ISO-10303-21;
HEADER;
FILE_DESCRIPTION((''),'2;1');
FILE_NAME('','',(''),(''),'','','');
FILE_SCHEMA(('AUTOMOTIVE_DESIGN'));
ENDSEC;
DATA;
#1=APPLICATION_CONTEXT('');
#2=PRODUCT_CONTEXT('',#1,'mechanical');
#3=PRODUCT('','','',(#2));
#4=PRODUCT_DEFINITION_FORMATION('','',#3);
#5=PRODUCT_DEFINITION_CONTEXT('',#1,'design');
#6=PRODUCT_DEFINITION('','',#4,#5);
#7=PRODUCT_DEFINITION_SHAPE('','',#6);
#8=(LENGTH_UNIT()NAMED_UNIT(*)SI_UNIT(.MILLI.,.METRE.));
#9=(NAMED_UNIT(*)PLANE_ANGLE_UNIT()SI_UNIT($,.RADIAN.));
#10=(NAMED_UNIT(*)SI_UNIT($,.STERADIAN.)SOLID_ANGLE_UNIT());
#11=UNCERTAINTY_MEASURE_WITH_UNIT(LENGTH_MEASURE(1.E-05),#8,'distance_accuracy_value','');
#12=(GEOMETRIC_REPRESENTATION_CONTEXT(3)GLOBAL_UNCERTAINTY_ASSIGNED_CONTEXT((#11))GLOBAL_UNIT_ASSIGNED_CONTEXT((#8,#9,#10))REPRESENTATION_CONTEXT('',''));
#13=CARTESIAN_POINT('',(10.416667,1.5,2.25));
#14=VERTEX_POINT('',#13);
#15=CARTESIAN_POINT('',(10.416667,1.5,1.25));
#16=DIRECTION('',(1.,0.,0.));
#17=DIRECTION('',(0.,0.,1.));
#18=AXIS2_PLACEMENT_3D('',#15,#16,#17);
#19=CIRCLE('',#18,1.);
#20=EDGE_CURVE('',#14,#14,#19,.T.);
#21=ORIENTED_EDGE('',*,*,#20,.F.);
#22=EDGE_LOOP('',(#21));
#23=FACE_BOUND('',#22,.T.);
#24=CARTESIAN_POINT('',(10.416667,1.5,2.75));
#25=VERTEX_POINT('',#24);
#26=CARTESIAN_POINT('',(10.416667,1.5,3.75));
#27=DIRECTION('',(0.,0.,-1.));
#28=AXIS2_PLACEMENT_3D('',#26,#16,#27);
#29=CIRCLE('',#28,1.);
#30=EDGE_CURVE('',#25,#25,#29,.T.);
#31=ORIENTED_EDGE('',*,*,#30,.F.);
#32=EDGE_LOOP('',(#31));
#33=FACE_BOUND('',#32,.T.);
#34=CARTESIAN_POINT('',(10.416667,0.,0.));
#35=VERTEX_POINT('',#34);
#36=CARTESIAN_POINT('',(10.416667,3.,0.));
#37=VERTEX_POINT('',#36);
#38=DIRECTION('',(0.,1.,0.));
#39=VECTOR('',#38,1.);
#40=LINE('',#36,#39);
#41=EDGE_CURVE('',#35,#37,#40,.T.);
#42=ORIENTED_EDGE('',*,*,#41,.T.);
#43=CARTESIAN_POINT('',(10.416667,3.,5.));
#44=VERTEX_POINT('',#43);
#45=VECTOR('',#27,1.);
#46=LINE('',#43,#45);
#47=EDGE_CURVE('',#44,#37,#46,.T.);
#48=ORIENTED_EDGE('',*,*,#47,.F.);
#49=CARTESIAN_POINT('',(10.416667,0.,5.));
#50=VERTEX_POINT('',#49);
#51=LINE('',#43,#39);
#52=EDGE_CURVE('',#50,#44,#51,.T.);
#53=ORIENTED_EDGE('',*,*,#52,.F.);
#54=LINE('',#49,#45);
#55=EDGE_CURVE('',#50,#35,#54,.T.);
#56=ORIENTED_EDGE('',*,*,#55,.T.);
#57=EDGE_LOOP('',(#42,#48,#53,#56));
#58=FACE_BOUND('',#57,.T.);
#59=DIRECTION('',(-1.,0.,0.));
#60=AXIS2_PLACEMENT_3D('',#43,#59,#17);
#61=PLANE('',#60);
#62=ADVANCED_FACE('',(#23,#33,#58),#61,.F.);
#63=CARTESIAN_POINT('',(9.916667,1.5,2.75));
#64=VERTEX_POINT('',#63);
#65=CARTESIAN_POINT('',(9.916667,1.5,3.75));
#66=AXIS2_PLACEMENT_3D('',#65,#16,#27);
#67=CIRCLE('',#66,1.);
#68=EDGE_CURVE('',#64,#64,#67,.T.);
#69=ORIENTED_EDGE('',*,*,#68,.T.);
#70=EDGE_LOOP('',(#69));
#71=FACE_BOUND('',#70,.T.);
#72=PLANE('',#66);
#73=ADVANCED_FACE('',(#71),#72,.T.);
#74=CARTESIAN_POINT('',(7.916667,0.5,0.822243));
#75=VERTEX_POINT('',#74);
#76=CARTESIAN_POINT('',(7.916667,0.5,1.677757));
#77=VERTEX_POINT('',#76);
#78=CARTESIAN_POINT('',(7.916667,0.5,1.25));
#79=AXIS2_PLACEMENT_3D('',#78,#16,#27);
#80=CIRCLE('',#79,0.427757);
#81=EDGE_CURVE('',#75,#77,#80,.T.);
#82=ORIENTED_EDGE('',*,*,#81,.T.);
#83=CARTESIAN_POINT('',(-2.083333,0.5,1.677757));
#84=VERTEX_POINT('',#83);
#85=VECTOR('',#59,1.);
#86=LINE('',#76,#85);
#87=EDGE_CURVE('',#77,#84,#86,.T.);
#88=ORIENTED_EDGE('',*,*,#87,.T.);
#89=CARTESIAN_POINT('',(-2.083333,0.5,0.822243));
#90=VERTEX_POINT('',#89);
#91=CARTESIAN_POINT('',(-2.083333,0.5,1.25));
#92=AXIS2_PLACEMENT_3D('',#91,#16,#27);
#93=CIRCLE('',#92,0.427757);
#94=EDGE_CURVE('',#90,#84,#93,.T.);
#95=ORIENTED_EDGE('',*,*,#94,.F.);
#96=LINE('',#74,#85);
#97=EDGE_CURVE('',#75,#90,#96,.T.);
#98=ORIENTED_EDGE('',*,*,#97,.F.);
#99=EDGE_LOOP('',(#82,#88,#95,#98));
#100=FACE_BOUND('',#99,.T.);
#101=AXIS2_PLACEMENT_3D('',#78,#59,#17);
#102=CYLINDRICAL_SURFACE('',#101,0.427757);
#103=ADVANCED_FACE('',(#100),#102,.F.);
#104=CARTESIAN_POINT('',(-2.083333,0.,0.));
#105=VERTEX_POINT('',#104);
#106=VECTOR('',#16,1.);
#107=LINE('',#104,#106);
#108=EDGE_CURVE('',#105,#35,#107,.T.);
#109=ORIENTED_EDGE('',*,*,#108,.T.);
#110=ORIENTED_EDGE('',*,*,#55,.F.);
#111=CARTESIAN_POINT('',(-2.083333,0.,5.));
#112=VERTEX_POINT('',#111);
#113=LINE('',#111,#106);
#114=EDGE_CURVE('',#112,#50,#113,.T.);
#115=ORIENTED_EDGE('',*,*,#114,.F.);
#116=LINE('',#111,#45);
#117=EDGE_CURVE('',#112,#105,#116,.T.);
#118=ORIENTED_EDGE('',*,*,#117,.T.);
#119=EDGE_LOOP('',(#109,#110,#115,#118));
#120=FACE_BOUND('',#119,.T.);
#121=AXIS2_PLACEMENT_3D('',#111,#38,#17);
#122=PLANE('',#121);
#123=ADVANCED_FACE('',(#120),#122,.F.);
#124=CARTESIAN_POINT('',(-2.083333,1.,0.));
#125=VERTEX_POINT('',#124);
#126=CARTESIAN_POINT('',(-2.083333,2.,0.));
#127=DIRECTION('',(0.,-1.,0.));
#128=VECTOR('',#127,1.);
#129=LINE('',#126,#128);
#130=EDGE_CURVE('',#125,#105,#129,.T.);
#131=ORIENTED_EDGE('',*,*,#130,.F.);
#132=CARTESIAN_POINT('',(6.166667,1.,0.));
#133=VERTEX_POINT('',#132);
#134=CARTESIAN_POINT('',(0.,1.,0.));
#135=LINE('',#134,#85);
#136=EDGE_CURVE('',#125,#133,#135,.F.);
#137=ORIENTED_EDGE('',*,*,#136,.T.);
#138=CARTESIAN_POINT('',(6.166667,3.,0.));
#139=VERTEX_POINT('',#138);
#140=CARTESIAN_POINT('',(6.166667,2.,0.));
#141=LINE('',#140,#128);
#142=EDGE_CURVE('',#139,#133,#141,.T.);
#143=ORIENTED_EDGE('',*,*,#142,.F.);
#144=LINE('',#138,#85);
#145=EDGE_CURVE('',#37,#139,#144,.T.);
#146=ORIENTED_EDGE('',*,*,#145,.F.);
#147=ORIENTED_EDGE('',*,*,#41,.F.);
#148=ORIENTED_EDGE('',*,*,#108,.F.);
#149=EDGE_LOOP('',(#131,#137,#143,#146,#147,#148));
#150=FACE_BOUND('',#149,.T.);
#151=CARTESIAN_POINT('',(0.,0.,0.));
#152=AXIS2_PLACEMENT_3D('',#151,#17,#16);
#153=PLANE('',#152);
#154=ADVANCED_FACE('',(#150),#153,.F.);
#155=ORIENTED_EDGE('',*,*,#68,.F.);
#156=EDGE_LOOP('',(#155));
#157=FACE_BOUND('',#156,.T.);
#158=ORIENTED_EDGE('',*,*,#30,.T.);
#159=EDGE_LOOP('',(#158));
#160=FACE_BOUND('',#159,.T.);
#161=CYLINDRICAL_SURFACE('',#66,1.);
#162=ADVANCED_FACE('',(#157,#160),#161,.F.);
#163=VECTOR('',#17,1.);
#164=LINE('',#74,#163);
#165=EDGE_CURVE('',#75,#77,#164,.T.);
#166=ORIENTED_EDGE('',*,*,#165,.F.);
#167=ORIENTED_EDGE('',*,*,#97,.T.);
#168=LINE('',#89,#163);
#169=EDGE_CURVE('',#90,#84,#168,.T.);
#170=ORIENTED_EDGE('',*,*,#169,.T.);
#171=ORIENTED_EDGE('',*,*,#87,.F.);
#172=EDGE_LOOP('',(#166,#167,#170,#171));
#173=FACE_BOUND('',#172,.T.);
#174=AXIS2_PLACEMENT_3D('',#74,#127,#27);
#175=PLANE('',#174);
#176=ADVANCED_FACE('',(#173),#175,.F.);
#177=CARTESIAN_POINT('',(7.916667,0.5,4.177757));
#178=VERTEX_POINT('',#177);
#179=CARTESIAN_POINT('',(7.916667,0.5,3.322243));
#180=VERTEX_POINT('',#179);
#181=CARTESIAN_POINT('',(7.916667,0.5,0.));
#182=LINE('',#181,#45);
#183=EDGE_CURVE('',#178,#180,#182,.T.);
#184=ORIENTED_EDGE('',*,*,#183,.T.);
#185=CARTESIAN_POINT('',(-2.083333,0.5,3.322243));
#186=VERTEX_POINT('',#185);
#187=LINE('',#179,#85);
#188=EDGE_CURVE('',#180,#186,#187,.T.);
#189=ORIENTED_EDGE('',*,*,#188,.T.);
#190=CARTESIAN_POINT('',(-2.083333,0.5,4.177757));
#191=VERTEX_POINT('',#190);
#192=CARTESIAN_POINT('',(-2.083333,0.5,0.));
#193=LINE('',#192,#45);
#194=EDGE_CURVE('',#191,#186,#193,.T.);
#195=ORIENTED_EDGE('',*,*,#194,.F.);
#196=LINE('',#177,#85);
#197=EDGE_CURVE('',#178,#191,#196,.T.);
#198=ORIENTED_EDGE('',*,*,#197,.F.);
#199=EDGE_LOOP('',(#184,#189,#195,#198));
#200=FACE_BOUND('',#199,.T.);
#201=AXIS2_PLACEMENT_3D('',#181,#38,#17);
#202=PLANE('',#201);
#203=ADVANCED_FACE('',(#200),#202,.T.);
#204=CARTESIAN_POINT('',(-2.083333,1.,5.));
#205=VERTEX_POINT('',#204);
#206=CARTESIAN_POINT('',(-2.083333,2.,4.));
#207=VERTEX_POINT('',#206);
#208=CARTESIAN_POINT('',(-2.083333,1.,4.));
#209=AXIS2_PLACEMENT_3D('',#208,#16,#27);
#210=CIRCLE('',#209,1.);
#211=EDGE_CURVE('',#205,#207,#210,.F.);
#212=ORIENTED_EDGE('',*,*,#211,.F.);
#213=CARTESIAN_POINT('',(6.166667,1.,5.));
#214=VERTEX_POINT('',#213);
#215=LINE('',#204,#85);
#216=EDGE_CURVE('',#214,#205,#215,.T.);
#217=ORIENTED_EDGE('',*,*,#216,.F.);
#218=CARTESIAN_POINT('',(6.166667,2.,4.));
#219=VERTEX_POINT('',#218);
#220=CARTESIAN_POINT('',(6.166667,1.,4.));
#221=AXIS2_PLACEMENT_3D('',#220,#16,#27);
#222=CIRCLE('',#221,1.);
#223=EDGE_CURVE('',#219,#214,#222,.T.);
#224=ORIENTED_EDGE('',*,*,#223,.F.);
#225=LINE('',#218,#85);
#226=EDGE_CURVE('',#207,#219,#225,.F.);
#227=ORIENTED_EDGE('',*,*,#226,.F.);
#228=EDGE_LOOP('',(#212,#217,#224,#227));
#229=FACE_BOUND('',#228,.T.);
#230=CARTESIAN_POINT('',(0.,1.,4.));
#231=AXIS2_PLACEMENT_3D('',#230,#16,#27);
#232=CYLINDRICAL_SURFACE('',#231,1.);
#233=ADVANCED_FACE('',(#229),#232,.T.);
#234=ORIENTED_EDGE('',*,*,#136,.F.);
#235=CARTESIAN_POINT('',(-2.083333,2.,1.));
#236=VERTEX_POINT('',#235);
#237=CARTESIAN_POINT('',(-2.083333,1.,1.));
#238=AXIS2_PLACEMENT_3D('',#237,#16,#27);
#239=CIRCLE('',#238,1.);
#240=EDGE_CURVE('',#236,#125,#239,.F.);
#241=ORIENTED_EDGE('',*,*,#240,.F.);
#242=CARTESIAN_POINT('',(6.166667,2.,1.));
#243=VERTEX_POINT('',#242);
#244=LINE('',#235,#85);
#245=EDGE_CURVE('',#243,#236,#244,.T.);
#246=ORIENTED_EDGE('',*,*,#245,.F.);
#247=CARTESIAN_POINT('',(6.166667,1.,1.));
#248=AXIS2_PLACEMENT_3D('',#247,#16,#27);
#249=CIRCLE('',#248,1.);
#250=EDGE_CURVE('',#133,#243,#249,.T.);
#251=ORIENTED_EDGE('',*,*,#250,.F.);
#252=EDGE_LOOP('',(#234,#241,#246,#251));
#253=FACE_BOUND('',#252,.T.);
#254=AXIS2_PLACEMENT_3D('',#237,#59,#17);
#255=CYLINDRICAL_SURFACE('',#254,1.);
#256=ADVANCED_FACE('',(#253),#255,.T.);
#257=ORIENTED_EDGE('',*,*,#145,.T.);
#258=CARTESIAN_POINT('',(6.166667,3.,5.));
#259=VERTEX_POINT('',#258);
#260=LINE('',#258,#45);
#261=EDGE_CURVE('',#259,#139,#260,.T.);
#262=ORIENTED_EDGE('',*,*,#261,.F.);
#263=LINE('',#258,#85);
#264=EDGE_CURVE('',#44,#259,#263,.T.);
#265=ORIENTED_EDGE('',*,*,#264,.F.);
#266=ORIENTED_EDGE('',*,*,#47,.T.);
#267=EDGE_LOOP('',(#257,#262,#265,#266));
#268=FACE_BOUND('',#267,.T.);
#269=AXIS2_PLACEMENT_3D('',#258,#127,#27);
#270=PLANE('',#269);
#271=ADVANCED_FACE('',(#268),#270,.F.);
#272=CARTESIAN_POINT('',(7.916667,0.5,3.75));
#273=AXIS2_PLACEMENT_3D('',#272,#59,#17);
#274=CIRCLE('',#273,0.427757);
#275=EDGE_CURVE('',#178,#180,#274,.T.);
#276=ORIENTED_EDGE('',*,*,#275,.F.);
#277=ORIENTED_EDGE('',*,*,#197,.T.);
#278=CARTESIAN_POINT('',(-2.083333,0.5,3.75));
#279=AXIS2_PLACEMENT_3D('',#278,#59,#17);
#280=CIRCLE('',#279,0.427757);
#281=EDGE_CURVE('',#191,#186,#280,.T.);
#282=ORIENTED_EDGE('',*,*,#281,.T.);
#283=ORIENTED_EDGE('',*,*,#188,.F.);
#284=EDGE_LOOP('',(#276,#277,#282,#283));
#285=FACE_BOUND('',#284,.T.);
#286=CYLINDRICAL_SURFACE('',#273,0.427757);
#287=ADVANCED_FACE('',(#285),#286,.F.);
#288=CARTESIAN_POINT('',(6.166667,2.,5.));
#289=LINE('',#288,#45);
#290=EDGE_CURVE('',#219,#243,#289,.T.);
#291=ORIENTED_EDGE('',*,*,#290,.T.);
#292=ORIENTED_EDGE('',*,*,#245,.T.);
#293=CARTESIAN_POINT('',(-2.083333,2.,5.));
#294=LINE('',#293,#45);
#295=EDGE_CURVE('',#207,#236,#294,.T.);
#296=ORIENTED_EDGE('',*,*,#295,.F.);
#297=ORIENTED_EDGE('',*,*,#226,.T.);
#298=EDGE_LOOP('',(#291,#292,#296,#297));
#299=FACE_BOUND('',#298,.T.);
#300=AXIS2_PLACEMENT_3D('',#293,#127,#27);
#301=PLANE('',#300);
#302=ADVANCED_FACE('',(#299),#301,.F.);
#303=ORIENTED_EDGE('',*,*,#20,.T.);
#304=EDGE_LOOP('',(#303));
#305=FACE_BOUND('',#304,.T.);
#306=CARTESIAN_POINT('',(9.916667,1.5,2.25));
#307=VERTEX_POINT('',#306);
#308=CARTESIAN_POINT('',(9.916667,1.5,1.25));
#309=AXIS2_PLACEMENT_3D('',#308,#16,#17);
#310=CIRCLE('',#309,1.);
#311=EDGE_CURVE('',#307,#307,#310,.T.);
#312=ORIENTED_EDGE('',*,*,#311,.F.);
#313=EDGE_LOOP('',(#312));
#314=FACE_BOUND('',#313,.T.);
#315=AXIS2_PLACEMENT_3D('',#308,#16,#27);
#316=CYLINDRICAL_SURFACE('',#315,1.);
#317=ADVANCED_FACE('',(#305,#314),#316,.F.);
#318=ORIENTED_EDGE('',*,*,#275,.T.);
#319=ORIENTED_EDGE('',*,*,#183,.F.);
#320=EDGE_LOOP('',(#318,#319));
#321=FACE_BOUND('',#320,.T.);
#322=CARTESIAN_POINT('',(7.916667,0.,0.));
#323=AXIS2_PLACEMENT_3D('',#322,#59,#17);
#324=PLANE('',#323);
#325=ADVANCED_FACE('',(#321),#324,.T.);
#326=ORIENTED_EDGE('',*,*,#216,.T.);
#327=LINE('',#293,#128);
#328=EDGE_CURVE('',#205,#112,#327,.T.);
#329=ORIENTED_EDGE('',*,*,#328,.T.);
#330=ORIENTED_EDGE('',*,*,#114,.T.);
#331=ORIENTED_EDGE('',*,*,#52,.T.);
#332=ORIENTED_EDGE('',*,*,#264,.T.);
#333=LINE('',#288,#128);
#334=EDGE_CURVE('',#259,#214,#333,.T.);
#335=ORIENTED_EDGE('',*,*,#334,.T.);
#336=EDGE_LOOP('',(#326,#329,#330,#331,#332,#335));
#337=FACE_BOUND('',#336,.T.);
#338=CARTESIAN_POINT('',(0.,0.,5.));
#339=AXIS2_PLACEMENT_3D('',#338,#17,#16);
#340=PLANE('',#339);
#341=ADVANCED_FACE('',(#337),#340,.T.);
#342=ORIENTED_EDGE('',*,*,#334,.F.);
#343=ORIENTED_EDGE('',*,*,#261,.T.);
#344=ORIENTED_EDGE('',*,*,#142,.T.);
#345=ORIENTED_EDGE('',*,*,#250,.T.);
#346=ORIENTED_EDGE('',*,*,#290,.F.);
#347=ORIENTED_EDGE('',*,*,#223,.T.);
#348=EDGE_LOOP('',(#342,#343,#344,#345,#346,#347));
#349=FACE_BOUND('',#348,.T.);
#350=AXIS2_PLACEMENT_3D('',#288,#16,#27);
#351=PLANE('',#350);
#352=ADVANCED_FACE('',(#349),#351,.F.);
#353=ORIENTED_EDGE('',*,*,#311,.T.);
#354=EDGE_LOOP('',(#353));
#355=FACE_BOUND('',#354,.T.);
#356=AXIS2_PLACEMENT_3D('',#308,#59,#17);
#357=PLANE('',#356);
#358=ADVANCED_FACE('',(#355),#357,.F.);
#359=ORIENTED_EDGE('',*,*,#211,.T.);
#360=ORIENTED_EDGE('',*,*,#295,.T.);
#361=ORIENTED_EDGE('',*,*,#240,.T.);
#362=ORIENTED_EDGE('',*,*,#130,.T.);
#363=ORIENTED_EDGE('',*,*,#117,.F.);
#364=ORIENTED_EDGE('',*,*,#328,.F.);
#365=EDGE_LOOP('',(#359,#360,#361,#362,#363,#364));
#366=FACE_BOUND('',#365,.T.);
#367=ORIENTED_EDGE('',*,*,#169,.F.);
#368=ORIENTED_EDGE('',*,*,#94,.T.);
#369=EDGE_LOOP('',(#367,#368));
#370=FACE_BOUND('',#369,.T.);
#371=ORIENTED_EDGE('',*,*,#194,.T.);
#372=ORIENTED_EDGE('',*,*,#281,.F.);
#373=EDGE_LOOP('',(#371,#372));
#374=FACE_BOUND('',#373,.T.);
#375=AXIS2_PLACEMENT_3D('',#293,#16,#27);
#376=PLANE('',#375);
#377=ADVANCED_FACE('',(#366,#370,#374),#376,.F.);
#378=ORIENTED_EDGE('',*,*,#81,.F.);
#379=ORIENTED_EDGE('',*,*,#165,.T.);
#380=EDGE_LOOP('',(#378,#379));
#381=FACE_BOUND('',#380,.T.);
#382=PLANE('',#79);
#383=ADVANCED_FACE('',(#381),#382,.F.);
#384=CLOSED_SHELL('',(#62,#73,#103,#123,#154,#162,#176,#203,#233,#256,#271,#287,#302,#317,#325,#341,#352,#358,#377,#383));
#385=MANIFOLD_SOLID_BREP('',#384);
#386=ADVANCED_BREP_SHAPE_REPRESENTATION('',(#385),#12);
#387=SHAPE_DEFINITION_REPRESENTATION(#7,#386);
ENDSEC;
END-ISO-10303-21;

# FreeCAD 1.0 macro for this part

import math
import FreeCAD as App
import Part
import Sketcher

V = App.Vector


def edges_at(feature, points):
    """Names of the edges that pass closest to the given points."""
    edges = feature.Shape.Edges
    near = lambda p: min(range(len(edges)), key=lambda i: edges[i].distToShape(Part.Vertex(*p))[0])
    return sorted({f"Edge{near(p) + 1}" for p in points})

doc = App.newDocument("Part")
body = doc.addObject("PartDesign::Body", "Body")

# Sketch on XY plane
sketch1 = doc.addObject("Sketcher::SketchObject", "Sketch")
body.addObject(sketch1)
sketch1.AttachmentSupport = (doc.XY_Plane, [""])
sketch1.MapMode = "FlatFace"
sketch1.addGeometry([
    Part.LineSegment(V(10.4, 0, 0), V(10.4, 3, 0)),  # 0
    Part.LineSegment(V(10.4, 3, 0), V(6.2, 3, 0)),  # 1
    Part.LineSegment(V(6.2, 3, 0), V(6.2, 2, 0)),  # 2
    Part.LineSegment(V(6.2, 2, 0), V(-2.1, 2, 0)),  # 3
    Part.LineSegment(V(-2.1, 2, 0), V(-2.1, 0, 0)),  # 4
    Part.LineSegment(V(-2.1, 0, 0), V(10.4, 0, 0)),  # 5
], False)
sketch1.addConstraint([
    Sketcher.Constraint("Coincident", 0, 2, 1, 1),
    Sketcher.Constraint("Coincident", 1, 2, 2, 1),
    Sketcher.Constraint("Coincident", 2, 2, 3, 1),
    Sketcher.Constraint("Coincident", 3, 2, 4, 1),
    Sketcher.Constraint("Coincident", 4, 2, 5, 1),
    Sketcher.Constraint("Coincident", 5, 2, 0, 1),
    Sketcher.Constraint("Vertical", 0),
    Sketcher.Constraint("Horizontal", 1),
    Sketcher.Constraint("Vertical", 2),
    Sketcher.Constraint("Horizontal", 3),
    Sketcher.Constraint("Vertical", 4),
    Sketcher.Constraint("Horizontal", 5),
    Sketcher.Constraint("PointOnObject", 4, 2, -1),
    Sketcher.Constraint("DistanceY", 0, 1, 0, 2, 3.0),
    Sketcher.Constraint("DistanceY", 2, 2, 2, 1, 1.0),
    Sketcher.Constraint("DistanceX", 5, 1, 5, 2, 12.5),
    Sketcher.Constraint("DistanceX", 1, 2, 1, 1, 4.25),
    Sketcher.Constraint("DistanceX", -1, 1, 0, 2, 10.416667),
])
pad1 = doc.addObject("PartDesign::Pad", "Pad")
body.addObject(pad1)
pad1.Profile = sketch1
pad1.Length = 5
doc.recompute()

fillet = doc.addObject("PartDesign::Fillet", "Fillet")
body.addObject(fillet)
fillet.Base = (pad1, edges_at(pad1, [(2.042, 2, 5), (2.042, 2, 0)]))
fillet.Radius = 1

# Sketch on YZ plane
sketch2 = doc.addObject("Sketcher::SketchObject", "Sketch001")
body.addObject(sketch2)
sketch2.AttachmentSupport = (doc.YZ_Plane, [""])
sketch2.MapMode = "FlatFace"
sketch2.AttachmentOffset = App.Placement(V(0, 0, -2.083333), App.Rotation())
sketch2.addGeometry([
    Part.LineSegment(V(0.5, 3.32, 0), V(0.5, 4.18, 0)),
    Part.ArcOfCircle(Part.Circle(V(0.5, 3.75, 0), V(0, 0, 1), 0.43), math.radians(-90), math.radians(90)),
    Part.LineSegment(V(0.5, 0.82, 0), V(0.5, 1.68, 0)),
    Part.ArcOfCircle(Part.Circle(V(0.5, 1.25, 0), V(0, 0, 1), 0.43), math.radians(-90), math.radians(90)),
], False)
sketch2.addConstraint([
    Sketcher.Constraint("Coincident", 0, 1, 1, 1),
    Sketcher.Constraint("Coincident", 1, 2, 0, 2),
    Sketcher.Constraint("Coincident", 2, 1, 3, 1),
    Sketcher.Constraint("Coincident", 3, 2, 2, 2),
    Sketcher.Constraint("Vertical", 0),
    Sketcher.Constraint("Vertical", 2),
    Sketcher.Constraint("Equal", 1, 3),
    Sketcher.Constraint("Vertical", 1, 3, 3, 3),
    Sketcher.Constraint("Vertical", 3, 3, 0, 1),
    Sketcher.Constraint("Vertical", 1, 2, 2, 1),
    Sketcher.Constraint("DistanceX", -1, 1, 1, 3, 0.5),
    Sketcher.Constraint("DistanceY", 3, 3, 1, 3, 2.5),
    Sketcher.Constraint("DistanceY", -1, 1, 1, 3, 3.75),
    Sketcher.Constraint("Radius", 1, 0.427757),
])
pocket1 = doc.addObject("PartDesign::Pocket", "Pocket")
body.addObject(pocket1)
pocket1.Profile = sketch2
pocket1.Length = 10
pocket1.Reversed = True

# Sketch on YZ plane
sketch3 = doc.addObject("Sketcher::SketchObject", "Sketch002")
body.addObject(sketch3)
sketch3.AttachmentSupport = (doc.YZ_Plane, [""])
sketch3.MapMode = "FlatFace"
sketch3.AttachmentOffset = App.Placement(V(0, 0, 10.416667), App.Rotation())
sketch3.addGeometry([
    Part.Circle(V(1.5, 3.8, 0), V(0, 0, 1), 1),
    Part.Circle(V(1.5, 1.2, 0), V(0, 0, 1), 1),
], False)
sketch3.addConstraint([
    Sketcher.Constraint("Equal", 0, 1),
    Sketcher.Constraint("Vertical", 0, 3, 1, 3),
    Sketcher.Constraint("Diameter", 0, 2.0),
    Sketcher.Constraint("DistanceX", -1, 1, 0, 3, 1.5),
    Sketcher.Constraint("DistanceY", 1, 3, 0, 3, 2.5),
    Sketcher.Constraint("DistanceY", -1, 1, 0, 3, 3.75),
])
pocket2 = doc.addObject("PartDesign::Pocket", "Pocket001")
body.addObject(pocket2)
pocket2.Profile = sketch3
pocket2.Length = 0.5

doc.recompute()
